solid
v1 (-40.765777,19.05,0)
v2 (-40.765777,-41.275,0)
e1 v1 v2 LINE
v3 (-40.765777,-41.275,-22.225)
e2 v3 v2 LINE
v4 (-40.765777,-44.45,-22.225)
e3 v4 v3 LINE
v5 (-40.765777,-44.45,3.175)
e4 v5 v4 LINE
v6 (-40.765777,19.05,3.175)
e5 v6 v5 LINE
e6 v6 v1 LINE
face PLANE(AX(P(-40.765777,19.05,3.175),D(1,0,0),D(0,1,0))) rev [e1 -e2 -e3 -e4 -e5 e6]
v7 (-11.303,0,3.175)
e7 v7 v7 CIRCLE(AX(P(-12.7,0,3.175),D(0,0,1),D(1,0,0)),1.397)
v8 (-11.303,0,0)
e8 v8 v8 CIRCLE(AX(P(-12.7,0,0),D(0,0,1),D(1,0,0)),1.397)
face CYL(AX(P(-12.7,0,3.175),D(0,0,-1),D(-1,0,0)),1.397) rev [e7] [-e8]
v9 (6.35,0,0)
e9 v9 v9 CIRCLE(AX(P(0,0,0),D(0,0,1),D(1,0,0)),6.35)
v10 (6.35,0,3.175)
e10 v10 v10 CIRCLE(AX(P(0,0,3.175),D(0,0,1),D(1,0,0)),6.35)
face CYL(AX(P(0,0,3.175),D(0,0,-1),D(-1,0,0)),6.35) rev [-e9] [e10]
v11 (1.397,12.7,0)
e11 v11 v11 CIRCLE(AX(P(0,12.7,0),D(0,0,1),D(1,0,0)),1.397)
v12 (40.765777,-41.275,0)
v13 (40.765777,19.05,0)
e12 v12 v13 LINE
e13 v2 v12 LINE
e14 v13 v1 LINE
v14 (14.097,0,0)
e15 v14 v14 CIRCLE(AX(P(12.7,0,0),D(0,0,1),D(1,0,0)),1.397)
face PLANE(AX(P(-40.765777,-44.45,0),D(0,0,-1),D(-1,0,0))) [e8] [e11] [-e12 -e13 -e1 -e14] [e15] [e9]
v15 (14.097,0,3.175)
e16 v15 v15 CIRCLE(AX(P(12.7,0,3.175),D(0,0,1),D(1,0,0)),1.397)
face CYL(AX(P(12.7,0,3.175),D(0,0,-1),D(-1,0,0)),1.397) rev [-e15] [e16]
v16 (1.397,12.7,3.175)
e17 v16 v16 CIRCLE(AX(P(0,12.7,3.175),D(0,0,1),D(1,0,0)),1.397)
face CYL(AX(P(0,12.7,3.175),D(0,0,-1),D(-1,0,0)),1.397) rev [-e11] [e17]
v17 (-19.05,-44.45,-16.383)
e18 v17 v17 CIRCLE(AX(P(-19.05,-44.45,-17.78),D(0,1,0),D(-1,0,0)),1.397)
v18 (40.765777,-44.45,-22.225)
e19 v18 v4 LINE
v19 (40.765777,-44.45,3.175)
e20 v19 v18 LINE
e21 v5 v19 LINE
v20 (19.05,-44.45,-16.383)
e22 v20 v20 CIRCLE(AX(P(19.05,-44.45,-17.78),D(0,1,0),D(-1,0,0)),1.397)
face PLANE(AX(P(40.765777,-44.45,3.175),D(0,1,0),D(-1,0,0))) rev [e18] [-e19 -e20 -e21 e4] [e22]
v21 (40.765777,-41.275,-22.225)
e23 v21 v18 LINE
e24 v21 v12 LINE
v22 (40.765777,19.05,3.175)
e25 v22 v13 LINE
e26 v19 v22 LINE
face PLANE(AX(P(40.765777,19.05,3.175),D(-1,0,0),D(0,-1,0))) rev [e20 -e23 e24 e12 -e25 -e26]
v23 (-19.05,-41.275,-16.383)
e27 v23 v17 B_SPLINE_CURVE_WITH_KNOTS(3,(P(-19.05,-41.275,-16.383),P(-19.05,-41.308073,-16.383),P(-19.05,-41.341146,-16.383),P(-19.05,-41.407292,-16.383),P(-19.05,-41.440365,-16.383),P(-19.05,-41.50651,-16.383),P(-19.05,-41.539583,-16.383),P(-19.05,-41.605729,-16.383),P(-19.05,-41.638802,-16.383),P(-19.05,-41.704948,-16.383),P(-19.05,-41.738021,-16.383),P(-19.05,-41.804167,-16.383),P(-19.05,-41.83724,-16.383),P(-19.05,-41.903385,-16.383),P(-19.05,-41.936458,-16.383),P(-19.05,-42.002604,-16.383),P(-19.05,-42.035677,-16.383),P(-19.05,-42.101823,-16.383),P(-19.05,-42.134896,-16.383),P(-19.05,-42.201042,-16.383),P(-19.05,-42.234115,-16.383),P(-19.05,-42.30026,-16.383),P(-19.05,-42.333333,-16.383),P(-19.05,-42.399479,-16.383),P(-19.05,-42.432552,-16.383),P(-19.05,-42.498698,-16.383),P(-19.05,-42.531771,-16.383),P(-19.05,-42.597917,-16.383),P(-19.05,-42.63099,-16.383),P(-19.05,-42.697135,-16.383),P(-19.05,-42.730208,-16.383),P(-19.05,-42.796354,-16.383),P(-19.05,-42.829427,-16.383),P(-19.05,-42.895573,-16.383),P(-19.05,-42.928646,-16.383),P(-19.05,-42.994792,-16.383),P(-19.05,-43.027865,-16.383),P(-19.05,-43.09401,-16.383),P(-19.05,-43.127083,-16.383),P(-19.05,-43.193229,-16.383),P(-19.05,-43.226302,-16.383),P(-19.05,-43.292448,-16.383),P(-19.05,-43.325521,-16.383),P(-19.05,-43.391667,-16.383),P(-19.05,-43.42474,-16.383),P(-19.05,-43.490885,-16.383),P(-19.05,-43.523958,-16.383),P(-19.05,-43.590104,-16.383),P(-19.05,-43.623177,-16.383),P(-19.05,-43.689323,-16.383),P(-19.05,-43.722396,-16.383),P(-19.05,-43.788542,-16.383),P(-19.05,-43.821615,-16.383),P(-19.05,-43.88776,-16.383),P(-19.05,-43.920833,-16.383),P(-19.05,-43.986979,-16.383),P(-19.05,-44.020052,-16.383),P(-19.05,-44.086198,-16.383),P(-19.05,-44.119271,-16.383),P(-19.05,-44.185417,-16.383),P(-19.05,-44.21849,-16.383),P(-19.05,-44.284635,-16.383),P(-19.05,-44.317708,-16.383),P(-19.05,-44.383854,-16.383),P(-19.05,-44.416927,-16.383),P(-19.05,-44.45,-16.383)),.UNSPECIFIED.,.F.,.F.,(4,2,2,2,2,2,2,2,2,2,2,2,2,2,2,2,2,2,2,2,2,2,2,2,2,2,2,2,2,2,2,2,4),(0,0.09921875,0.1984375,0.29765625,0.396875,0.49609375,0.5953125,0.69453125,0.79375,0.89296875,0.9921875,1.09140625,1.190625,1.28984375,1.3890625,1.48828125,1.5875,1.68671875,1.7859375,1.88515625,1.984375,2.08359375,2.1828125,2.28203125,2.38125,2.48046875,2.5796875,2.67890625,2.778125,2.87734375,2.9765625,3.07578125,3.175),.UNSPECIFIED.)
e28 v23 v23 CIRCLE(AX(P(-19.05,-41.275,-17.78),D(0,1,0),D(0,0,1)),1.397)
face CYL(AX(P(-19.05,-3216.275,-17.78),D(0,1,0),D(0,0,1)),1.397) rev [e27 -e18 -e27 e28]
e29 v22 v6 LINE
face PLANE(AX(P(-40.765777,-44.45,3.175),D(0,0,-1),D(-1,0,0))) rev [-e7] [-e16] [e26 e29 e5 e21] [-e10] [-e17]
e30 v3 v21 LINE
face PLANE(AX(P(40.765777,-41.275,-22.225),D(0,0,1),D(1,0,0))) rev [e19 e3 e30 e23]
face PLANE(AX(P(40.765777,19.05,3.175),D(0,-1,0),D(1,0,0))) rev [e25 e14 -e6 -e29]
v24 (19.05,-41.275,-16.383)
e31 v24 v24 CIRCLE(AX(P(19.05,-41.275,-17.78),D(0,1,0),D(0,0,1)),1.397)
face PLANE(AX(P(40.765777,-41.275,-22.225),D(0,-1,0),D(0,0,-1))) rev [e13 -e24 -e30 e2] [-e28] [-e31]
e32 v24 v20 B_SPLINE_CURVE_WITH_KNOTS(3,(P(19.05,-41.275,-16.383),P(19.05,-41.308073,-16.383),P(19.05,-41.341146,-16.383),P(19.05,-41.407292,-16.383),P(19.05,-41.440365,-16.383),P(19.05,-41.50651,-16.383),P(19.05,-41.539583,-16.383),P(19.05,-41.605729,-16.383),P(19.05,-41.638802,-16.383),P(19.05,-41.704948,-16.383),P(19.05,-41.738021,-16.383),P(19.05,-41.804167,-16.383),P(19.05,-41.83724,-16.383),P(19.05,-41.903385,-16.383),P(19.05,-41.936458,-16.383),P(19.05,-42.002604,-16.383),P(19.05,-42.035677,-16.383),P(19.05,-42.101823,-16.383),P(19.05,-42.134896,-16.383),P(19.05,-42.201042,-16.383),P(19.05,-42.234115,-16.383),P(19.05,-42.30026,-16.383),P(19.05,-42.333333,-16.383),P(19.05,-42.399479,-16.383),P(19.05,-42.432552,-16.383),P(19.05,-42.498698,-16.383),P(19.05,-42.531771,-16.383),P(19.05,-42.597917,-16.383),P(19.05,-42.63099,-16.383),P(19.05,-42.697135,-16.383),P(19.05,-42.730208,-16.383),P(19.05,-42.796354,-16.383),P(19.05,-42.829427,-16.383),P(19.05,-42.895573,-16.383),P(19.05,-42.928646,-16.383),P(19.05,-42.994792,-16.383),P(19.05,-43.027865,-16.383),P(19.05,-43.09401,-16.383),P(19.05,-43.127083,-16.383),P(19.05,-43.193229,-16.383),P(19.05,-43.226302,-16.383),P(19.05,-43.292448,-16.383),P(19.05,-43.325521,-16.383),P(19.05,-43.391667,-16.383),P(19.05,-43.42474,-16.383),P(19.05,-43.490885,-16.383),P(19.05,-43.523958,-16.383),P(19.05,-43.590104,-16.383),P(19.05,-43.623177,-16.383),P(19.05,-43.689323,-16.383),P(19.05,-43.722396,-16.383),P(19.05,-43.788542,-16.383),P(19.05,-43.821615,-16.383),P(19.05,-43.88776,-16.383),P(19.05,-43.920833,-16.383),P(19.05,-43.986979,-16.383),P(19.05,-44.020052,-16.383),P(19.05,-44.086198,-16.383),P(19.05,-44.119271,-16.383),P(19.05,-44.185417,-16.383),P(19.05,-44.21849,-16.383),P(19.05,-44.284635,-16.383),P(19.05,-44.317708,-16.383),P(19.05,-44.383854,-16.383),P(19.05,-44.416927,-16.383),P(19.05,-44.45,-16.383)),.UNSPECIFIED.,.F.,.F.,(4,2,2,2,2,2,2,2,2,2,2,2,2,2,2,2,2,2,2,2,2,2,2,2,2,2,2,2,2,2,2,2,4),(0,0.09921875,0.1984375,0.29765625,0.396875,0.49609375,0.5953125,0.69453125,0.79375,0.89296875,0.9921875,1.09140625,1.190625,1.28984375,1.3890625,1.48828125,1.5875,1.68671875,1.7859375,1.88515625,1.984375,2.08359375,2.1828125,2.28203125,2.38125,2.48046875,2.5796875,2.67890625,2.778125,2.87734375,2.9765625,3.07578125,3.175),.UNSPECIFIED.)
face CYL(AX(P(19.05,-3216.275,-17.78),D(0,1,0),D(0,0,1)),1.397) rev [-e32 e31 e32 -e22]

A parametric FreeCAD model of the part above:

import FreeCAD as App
import Part
import Sketcher
from FreeCAD import Vector
Q = App.Units.Quantity

doc = App.newDocument("Part")
body = doc.addObject("PartDesign::Body", "Body")

# Sketch on XY plane
sketch1 = body.newObject("Sketcher::SketchObject", "Sketch")
sketch1.AttachmentSupport = (doc.getObject("XY_Plane"), [""])
sketch1.MapMode = "FlatFace"
sketch1.addGeometry(Part.LineSegment(Vector(-40.8, 19.1, 0), Vector(-40.8, -44.5, 0)), False)
sketch1.addGeometry(Part.LineSegment(Vector(-40.8, -44.5, 0), Vector(40.8, -44.5, 0)), False)
sketch1.addGeometry(Part.LineSegment(Vector(40.8, -44.5, 0), Vector(40.8, 19.1, 0)), False)
sketch1.addGeometry(Part.LineSegment(Vector(40.8, 19.1, 0), Vector(-40.8, 19.1, 0)), False)
sketch1.addGeometry(Part.Circle(Vector(-12.7, 0, 0), Vector(0, 0, 1), 1.4), False)
sketch1.addGeometry(Part.Circle(Vector(0, 0, 0), Vector(0, 0, 1), 6.3), False)
sketch1.addGeometry(Part.Circle(Vector(12.7, 0, 0), Vector(0, 0, 1), 1.4), False)
sketch1.addGeometry(Part.Circle(Vector(0, 12.7, 0), Vector(0, 0, 1), 1.4), False)
sketch1.addConstraint(Sketcher.Constraint("Coincident", 0, 2, 1, 1))
sketch1.addConstraint(Sketcher.Constraint("Coincident", 1, 2, 2, 1))
sketch1.addConstraint(Sketcher.Constraint("Coincident", 2, 2, 3, 1))
sketch1.addConstraint(Sketcher.Constraint("Coincident", 3, 2, 0, 1))
sketch1.addConstraint(Sketcher.Constraint("Vertical", 0))
sketch1.addConstraint(Sketcher.Constraint("Horizontal", 1))
sketch1.addConstraint(Sketcher.Constraint("Vertical", 2))
sketch1.addConstraint(Sketcher.Constraint("Horizontal", 3))
sketch1.addConstraint(Sketcher.Constraint("Coincident", 5, 3, -1, 1))
sketch1.addConstraint(Sketcher.Constraint("Equal", 4, 6))
sketch1.addConstraint(Sketcher.Constraint("Equal", 6, 7))
sketch1.addConstraint(Sketcher.Constraint("Symmetric", 4, 3, 6, 3, -1, 1))
sketch1.addConstraint(Sketcher.Constraint("PointOnObject", 4, 3, -1))
sketch1.addConstraint(Sketcher.Constraint("PointOnObject", 7, 3, -2))
sketch1.addConstraint(Sketcher.Constraint("Diameter", 5, Q("0.5 in")))
sketch1.addConstraint(Sketcher.Constraint("Diameter", 4, Q("0.11 in")))
sketch1.addConstraint(Sketcher.Constraint("DistanceY", 0, 2, 0, 1, Q("2.5 in")))
sketch1.addConstraint(Sketcher.Constraint("DistanceX", 4, 3, 6, 3, Q("1 in")))
sketch1.addConstraint(Sketcher.Constraint("DistanceY", -1, 1, 7, 3, Q("0.5 in")))
sketch1.addConstraint(Sketcher.Constraint("DistanceY", 0, 2, -1, 1, Q("1.75 in")))
sketch1.addConstraint(Sketcher.Constraint("DistanceX", 1, 1, 1, 2, Q("81.531554 mm")))
sketch1.addConstraint(Sketcher.Constraint("DistanceX", 0, 2, -1, 1, Q("40.765777 mm")))
pad1 = body.newObject("PartDesign::Pad", "Pad")
pad1.Profile = sketch1
pad1.Length = Q("0.125 in")

# Sketch on XY plane
sketch2 = body.newObject("Sketcher::SketchObject", "Sketch001")
sketch2.AttachmentSupport = (doc.getObject("XY_Plane"), [""])
sketch2.MapMode = "FlatFace"
sketch2.addGeometry(Part.LineSegment(Vector(40.8, -41.3, 0), Vector(40.8, -44.5, 0)), False)
sketch2.addGeometry(Part.LineSegment(Vector(40.8, -44.5, 0), Vector(-40.8, -44.5, 0)), False)
sketch2.addGeometry(Part.LineSegment(Vector(-40.8, -44.5, 0), Vector(-40.8, -41.3, 0)), False)
sketch2.addGeometry(Part.LineSegment(Vector(-40.8, -41.3, 0), Vector(40.8, -41.3, 0)), False)
sketch2.addConstraint(Sketcher.Constraint("Coincident", 0, 2, 1, 1))
sketch2.addConstraint(Sketcher.Constraint("Coincident", 1, 2, 2, 1))
sketch2.addConstraint(Sketcher.Constraint("Coincident", 2, 2, 3, 1))
sketch2.addConstraint(Sketcher.Constraint("Coincident", 3, 2, 0, 1))
sketch2.addConstraint(Sketcher.Constraint("Vertical", 0))
sketch2.addConstraint(Sketcher.Constraint("Horizontal", 1))
sketch2.addConstraint(Sketcher.Constraint("Vertical", 2))
sketch2.addConstraint(Sketcher.Constraint("Horizontal", 3))
sketch2.addConstraint(Sketcher.Constraint("DistanceY", 0, 2, 0, 1, Q("0.125 in")))
sketch2.addConstraint(Sketcher.Constraint("DistanceY", 0, 2, -1, 1, Q("1.75 in")))
sketch2.addConstraint(Sketcher.Constraint("DistanceX", 1, 2, 1, 1, Q("81.531554 mm")))
sketch2.addConstraint(Sketcher.Constraint("DistanceX", -1, 1, 0, 2, Q("40.765777 mm")))
pad2 = body.newObject("PartDesign::Pad", "Pad001")
pad2.Profile = sketch2
pad2.Length = Q("0.875 in")
pad2.Reversed = True

# Sketch on XZ plane
sketch3 = body.newObject("Sketcher::SketchObject", "Sketch002")
sketch3.AttachmentSupport = (doc.getObject("XZ_Plane"), [""])
sketch3.MapMode = "FlatFace"
sketch3.AttachmentOffset = App.Placement(Vector(0, 0, 1.625 * 25.4), App.Rotation())
sketch3.addGeometry(Part.Circle(Vector(-19.1, -17.8, 0), Vector(0, 0, 1), 1.4), False)
sketch3.addGeometry(Part.Circle(Vector(19.1, -17.8, 0), Vector(0, 0, 1), 1.4), False)
sketch3.addConstraint(Sketcher.Constraint("Equal", 0, 1))
sketch3.addConstraint(Sketcher.Constraint("Symmetric", 0, 3, 1, 3, -2))
sketch3.addConstraint(Sketcher.Constraint("Diameter", 0, Q("0.11 in")))
sketch3.addConstraint(Sketcher.Constraint("DistanceY", 0, 3, -1, 1, Q("0.7 in")))
sketch3.addConstraint(Sketcher.Constraint("DistanceX", 0, 3, 1, 3, Q("1.5 in")))
pocket1 = body.newObject("PartDesign::Pocket", "Pocket")
pocket1.Profile = sketch3
pocket1.Length = Q("125 in")
pocket1.Reversed = True

doc.recompute()
